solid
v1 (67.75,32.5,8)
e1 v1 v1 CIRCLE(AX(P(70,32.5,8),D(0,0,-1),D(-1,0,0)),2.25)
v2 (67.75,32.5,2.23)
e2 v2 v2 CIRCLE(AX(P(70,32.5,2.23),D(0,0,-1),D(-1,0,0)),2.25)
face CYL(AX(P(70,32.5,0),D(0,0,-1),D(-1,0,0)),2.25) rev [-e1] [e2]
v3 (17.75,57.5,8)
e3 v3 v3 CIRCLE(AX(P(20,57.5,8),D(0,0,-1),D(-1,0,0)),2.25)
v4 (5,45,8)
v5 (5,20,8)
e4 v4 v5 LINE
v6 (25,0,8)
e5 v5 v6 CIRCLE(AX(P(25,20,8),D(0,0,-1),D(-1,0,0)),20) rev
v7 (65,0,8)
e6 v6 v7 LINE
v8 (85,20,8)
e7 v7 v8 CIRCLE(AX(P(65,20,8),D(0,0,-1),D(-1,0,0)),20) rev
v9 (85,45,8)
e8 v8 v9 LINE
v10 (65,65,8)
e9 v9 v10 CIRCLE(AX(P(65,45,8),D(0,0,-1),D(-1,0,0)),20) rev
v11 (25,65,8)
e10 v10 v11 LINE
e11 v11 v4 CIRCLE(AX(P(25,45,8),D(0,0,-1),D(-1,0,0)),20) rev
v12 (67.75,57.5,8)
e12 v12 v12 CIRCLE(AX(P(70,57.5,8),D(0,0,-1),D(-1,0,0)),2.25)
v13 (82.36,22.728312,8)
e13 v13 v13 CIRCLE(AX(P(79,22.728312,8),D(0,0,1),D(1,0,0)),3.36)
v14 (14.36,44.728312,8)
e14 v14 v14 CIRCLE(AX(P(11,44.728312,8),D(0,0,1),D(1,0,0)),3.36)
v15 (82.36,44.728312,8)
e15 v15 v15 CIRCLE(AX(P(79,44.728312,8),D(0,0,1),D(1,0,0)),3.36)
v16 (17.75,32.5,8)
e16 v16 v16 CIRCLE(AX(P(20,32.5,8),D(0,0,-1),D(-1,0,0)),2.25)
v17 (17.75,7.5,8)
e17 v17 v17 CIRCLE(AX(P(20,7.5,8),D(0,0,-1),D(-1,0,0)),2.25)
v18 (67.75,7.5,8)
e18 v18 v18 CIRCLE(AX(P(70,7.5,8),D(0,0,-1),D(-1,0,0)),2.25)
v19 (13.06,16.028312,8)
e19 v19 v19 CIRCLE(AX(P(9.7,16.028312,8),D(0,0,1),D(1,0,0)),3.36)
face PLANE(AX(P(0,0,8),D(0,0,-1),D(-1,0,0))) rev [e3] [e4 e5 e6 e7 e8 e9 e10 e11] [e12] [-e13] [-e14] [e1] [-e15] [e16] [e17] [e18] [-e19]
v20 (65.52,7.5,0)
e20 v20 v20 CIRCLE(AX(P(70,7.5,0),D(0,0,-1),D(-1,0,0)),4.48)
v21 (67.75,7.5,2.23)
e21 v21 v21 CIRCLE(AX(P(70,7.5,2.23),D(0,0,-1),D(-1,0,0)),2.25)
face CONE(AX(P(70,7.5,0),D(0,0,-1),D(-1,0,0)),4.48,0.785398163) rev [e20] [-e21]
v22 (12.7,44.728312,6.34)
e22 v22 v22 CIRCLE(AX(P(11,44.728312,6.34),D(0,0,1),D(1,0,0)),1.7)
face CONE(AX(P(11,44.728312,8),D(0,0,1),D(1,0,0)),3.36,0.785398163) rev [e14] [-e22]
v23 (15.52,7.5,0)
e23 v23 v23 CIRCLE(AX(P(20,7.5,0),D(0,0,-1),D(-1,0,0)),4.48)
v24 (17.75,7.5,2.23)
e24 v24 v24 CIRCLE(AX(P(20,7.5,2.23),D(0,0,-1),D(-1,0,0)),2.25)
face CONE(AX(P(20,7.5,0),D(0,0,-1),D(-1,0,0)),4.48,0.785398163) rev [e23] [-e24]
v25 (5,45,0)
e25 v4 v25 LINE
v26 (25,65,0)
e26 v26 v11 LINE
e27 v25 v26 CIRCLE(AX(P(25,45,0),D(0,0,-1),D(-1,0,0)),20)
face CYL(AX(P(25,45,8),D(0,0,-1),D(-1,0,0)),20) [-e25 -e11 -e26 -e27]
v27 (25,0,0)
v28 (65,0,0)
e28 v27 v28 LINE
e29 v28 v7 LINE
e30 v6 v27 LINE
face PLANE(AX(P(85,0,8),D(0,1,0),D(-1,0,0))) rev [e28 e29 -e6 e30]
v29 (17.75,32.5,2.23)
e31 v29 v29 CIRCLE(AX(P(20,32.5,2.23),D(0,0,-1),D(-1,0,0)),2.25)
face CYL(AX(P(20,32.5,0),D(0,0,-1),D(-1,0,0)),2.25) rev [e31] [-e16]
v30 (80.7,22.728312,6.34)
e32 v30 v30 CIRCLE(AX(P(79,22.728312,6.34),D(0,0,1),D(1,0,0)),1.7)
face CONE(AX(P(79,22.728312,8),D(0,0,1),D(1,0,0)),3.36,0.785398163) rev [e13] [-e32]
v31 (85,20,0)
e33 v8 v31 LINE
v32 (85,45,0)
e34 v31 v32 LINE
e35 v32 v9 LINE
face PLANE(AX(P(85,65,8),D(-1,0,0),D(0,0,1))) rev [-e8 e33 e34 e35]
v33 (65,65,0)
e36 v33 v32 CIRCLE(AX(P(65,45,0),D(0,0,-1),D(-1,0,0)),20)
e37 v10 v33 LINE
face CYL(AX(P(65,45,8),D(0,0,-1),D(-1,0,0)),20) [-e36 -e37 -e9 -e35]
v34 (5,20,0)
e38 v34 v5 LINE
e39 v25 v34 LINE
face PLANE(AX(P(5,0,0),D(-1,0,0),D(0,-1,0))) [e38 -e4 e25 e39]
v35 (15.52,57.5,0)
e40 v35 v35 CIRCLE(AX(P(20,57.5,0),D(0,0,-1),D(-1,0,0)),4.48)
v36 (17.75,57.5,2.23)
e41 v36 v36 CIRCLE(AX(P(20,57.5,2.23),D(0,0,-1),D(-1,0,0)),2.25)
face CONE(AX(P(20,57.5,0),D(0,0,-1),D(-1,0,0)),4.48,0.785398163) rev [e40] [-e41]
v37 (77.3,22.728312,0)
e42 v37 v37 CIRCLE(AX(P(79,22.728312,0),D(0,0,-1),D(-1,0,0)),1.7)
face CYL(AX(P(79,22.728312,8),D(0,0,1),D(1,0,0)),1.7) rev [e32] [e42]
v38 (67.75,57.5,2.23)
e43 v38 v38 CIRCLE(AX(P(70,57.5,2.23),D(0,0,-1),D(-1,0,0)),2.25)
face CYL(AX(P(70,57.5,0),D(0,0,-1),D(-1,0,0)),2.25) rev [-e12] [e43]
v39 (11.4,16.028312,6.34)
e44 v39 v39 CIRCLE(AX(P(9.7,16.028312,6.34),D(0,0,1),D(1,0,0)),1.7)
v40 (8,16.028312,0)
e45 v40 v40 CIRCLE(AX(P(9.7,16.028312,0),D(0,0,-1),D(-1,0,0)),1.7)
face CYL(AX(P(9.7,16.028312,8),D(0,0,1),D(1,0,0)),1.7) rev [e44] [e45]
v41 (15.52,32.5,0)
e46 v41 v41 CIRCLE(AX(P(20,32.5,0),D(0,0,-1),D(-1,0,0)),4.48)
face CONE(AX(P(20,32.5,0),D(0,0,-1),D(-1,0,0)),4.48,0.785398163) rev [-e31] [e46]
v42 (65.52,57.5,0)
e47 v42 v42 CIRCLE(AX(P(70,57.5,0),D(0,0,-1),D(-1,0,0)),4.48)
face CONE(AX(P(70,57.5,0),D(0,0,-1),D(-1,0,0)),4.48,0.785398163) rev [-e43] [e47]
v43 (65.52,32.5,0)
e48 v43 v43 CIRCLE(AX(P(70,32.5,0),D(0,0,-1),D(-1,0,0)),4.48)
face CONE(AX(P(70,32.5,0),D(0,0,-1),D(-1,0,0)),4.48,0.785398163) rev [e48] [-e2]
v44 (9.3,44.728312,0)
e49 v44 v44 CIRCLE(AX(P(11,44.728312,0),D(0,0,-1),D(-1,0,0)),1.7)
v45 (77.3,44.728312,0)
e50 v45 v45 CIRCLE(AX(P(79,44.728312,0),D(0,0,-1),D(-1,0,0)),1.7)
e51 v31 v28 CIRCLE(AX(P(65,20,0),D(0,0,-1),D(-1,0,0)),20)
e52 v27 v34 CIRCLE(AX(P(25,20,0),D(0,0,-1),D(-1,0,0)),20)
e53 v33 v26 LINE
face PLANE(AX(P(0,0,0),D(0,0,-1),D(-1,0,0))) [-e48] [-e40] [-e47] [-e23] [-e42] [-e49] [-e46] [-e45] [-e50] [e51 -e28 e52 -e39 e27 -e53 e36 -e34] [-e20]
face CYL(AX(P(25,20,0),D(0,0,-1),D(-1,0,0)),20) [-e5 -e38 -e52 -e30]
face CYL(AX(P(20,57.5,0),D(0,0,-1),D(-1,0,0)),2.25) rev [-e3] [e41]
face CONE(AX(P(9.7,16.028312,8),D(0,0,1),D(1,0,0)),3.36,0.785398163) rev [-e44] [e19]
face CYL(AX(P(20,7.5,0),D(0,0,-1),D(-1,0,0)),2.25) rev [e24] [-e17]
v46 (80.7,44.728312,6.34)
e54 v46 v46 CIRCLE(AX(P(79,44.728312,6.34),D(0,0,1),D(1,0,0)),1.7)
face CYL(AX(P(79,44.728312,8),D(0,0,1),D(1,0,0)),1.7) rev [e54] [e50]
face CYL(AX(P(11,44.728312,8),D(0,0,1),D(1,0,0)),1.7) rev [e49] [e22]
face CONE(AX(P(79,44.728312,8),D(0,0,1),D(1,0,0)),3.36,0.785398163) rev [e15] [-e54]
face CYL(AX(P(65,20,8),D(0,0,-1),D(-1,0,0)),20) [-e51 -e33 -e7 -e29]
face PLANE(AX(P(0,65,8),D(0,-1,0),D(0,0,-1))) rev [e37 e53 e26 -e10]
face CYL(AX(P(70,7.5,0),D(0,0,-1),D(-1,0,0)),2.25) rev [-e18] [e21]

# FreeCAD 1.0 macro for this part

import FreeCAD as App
import Part
import Sketcher

V = App.Vector
Q = App.Units.Quantity


def edges_at(feature, points):
    """Names of the edges that pass closest to the given points."""
    edges = feature.Shape.Edges
    near = lambda p: min(range(len(edges)), key=lambda i: edges[i].distToShape(Part.Vertex(*p))[0])
    return sorted({f"Edge{near(p) + 1}" for p in points})


def add_polygon(sketch, points):
    """Adds a closed chain of lines whose ends are joined by coincident constraints."""
    first, n = sketch.GeometryCount, len(points)
    for a, b in zip(points, points[1:] + points[:1]):
        sketch.addGeometry(Part.LineSegment(App.Vector(*a, 0), App.Vector(*b, 0)), False)
    for i in range(n):
        sketch.addConstraint(Sketcher.Constraint("Coincident", first + i, 2, first + (i + 1) % n, 1))

doc = App.newDocument("Part")
body = doc.addObject("PartDesign::Body", "Body")

sketch1 = body.newObject("Sketcher::SketchObject", "Sketch")
sketch1.AttachmentSupport = (doc.getObject("XY_Plane"), [""])
sketch1.MapMode = "FlatFace"
add_polygon(sketch1, [(0, 65), (0, 0), (85, 0), (85, 65)])
sketch1.addConstraint([
    Sketcher.Constraint("Vertical", 0),
    Sketcher.Constraint("Horizontal", 1),
    Sketcher.Constraint("Vertical", 2),
    Sketcher.Constraint("Horizontal", 3),
    Sketcher.Constraint("Coincident", 0, 2, -1, 1),
    Sketcher.Constraint("DistanceX", 1, 1, 1, 2, Q("85 mm")),
    Sketcher.Constraint("DistanceY", 0, 2, 0, 1, Q("65 mm")),
])
pad1 = body.newObject("PartDesign::Pad", "Pad")
pad1.Profile = sketch1
pad1.Length = 8

sketch2 = body.newObject("Sketcher::SketchObject", "Sketch001")
sketch2.AttachmentSupport = (doc.getObject("XY_Plane"), [""])
sketch2.MapMode = "FlatFace"
sketch2.addGeometry([
    Part.Circle(V(70, 57.5, 0), V(0, 0, 1), 2.2),
    Part.Circle(V(20, 57.5, 0), V(0, 0, 1), 2.2),
    Part.Circle(V(20, 32.5, 0), V(0, 0, 1), 2.2),
    Part.Circle(V(70, 32.5, 0), V(0, 0, 1), 2.2),
    Part.Circle(V(70, 7.5, 0), V(0, 0, 1), 2.2),
    Part.Circle(V(20, 7.5, 0), V(0, 0, 1), 2.2),
], False)
sketch2.addConstraint([
    Sketcher.Constraint("Equal", 0, 1),
    Sketcher.Constraint("Equal", 1, 2),
    Sketcher.Constraint("Equal", 2, 3),
    Sketcher.Constraint("Equal", 3, 4),
    Sketcher.Constraint("Equal", 4, 5),
    Sketcher.Constraint("Horizontal", 0, 3, 1, 3),
    Sketcher.Constraint("Horizontal", 2, 3, 3, 3),
    Sketcher.Constraint("Horizontal", 4, 3, 5, 3),
    Sketcher.Constraint("Vertical", 1, 3, 2, 3),
    Sketcher.Constraint("Vertical", 0, 3, 3, 3),
    Sketcher.Constraint("Vertical", 3, 3, 4, 3),
    Sketcher.Constraint("Vertical", 2, 3, 5, 3),
    Sketcher.Constraint("Diameter", 0, Q("4.5 mm")),
    Sketcher.Constraint("DistanceX", -1, 1, 0, 3, Q("70 mm")),
    Sketcher.Constraint("DistanceX", -1, 1, 1, 3, Q("20 mm")),
    Sketcher.Constraint("DistanceY", 2, 3, 1, 3, Q("25 mm")),
    Sketcher.Constraint("DistanceY", 4, 3, 3, 3, Q("25 mm")),
    Sketcher.Constraint("DistanceY", -1, 1, 0, 3, Q("57.5 mm")),
])
doc.recompute()
hole = body.newObject("PartDesign::Hole", "Hole")
hole.Profile = sketch2
hole.ThreadType = "None"
hole.Diameter = 4.5
hole.DepthType = "Dimension"
hole.Depth = 10.648064
hole.DrillPoint = "Angled"
hole.DrillPointAngle = 118
hole.HoleCutType = "Countersink"
hole.HoleCutDiameter = 8.96
hole.HoleCutCountersinkAngle = 90
hole.Reversed = True

sketch3 = body.newObject("Sketcher::SketchObject", "Sketch002")
sketch3.AttachmentSupport = (doc.getObject("XY_Plane"), [""])
sketch3.MapMode = "FlatFace"
sketch3.AttachmentOffset = App.Placement(V(0, 0, 8), App.Rotation())
sketch3.addGeometry([
    Part.Circle(V(11, 44.7, 0), V(0, 0, 1), 1.7),
    Part.Circle(V(79, 44.7, 0), V(0, 0, 1), 1.7),
    Part.Circle(V(79, 22.7, 0), V(0, 0, 1), 1.7),
    Part.Circle(V(9.7, 16, 0), V(0, 0, 1), 1.7),
], False)
sketch3.addConstraint([
    Sketcher.Constraint("Equal", 0, 1),
    Sketcher.Constraint("Equal", 1, 2),
    Sketcher.Constraint("Equal", 2, 3),
    Sketcher.Constraint("Horizontal", 0, 3, 1, 3),
    Sketcher.Constraint("Vertical", 1, 3, 2, 3),
    Sketcher.Constraint("Diameter", 0, Q("3.4 mm")),
    Sketcher.Constraint("DistanceX", -1, 1, 0, 3, Q("11 mm")),
    Sketcher.Constraint("DistanceX", -1, 1, 1, 3, Q("79 mm")),
    Sketcher.Constraint("DistanceY", 2, 3, 1, 3, Q("22 mm")),
    Sketcher.Constraint("DistanceX", -1, 1, 3, 3, Q("9.7 mm")),
    Sketcher.Constraint("DistanceY", 3, 3, 0, 3, Q("28.7 mm")),
    Sketcher.Constraint("DistanceY", -1, 1, 0, 3, Q("44.728312 mm")),
])
doc.recompute()
hole2 = body.newObject("PartDesign::Hole", "Hole001")
hole2.Profile = sketch3
hole2.ThreadType = "None"
hole2.Diameter = 3.4
hole2.DepthType = "Dimension"
hole2.Depth = 10.978537
hole2.DrillPoint = "Angled"
hole2.DrillPointAngle = 118
hole2.HoleCutType = "Countersink"
hole2.HoleCutDiameter = 6.72
hole2.HoleCutCountersinkAngle = 90

sketch4 = body.newObject("Sketcher::SketchObject", "Sketch003")
sketch4.AttachmentSupport = (doc.getObject("XY_Plane"), [""])
sketch4.MapMode = "FlatFace"
sketch4.AttachmentOffset = App.Placement(V(0, 0, 8), App.Rotation())
add_polygon(sketch4, [(0, 65), (0, 0), (5, 0), (5, 65)])
sketch4.addConstraint([
    Sketcher.Constraint("Vertical", 0),
    Sketcher.Constraint("Horizontal", 1),
    Sketcher.Constraint("Vertical", 2),
    Sketcher.Constraint("Horizontal", 3),
    Sketcher.Constraint("Coincident", 0, 2, -1, 1),
    Sketcher.Constraint("DistanceX", 1, 1, 1, 2, Q("5 mm")),
    Sketcher.Constraint("DistanceY", 0, 2, 0, 1, Q("65 mm")),
])
pocket1 = body.newObject("PartDesign::Pocket", "Pocket")
pocket1.Profile = sketch4
pocket1.Type = "ThroughAll"
doc.recompute()

fillet = body.newObject("PartDesign::Fillet", "Fillet")
fillet.Base = (pocket1, edges_at(pocket1, [
    (85, 65, 4),
    (85, 0, 4),
    (5, 65, 4),
    (5, 0, 4),
]))
fillet.Radius = 20

doc.recompute()
